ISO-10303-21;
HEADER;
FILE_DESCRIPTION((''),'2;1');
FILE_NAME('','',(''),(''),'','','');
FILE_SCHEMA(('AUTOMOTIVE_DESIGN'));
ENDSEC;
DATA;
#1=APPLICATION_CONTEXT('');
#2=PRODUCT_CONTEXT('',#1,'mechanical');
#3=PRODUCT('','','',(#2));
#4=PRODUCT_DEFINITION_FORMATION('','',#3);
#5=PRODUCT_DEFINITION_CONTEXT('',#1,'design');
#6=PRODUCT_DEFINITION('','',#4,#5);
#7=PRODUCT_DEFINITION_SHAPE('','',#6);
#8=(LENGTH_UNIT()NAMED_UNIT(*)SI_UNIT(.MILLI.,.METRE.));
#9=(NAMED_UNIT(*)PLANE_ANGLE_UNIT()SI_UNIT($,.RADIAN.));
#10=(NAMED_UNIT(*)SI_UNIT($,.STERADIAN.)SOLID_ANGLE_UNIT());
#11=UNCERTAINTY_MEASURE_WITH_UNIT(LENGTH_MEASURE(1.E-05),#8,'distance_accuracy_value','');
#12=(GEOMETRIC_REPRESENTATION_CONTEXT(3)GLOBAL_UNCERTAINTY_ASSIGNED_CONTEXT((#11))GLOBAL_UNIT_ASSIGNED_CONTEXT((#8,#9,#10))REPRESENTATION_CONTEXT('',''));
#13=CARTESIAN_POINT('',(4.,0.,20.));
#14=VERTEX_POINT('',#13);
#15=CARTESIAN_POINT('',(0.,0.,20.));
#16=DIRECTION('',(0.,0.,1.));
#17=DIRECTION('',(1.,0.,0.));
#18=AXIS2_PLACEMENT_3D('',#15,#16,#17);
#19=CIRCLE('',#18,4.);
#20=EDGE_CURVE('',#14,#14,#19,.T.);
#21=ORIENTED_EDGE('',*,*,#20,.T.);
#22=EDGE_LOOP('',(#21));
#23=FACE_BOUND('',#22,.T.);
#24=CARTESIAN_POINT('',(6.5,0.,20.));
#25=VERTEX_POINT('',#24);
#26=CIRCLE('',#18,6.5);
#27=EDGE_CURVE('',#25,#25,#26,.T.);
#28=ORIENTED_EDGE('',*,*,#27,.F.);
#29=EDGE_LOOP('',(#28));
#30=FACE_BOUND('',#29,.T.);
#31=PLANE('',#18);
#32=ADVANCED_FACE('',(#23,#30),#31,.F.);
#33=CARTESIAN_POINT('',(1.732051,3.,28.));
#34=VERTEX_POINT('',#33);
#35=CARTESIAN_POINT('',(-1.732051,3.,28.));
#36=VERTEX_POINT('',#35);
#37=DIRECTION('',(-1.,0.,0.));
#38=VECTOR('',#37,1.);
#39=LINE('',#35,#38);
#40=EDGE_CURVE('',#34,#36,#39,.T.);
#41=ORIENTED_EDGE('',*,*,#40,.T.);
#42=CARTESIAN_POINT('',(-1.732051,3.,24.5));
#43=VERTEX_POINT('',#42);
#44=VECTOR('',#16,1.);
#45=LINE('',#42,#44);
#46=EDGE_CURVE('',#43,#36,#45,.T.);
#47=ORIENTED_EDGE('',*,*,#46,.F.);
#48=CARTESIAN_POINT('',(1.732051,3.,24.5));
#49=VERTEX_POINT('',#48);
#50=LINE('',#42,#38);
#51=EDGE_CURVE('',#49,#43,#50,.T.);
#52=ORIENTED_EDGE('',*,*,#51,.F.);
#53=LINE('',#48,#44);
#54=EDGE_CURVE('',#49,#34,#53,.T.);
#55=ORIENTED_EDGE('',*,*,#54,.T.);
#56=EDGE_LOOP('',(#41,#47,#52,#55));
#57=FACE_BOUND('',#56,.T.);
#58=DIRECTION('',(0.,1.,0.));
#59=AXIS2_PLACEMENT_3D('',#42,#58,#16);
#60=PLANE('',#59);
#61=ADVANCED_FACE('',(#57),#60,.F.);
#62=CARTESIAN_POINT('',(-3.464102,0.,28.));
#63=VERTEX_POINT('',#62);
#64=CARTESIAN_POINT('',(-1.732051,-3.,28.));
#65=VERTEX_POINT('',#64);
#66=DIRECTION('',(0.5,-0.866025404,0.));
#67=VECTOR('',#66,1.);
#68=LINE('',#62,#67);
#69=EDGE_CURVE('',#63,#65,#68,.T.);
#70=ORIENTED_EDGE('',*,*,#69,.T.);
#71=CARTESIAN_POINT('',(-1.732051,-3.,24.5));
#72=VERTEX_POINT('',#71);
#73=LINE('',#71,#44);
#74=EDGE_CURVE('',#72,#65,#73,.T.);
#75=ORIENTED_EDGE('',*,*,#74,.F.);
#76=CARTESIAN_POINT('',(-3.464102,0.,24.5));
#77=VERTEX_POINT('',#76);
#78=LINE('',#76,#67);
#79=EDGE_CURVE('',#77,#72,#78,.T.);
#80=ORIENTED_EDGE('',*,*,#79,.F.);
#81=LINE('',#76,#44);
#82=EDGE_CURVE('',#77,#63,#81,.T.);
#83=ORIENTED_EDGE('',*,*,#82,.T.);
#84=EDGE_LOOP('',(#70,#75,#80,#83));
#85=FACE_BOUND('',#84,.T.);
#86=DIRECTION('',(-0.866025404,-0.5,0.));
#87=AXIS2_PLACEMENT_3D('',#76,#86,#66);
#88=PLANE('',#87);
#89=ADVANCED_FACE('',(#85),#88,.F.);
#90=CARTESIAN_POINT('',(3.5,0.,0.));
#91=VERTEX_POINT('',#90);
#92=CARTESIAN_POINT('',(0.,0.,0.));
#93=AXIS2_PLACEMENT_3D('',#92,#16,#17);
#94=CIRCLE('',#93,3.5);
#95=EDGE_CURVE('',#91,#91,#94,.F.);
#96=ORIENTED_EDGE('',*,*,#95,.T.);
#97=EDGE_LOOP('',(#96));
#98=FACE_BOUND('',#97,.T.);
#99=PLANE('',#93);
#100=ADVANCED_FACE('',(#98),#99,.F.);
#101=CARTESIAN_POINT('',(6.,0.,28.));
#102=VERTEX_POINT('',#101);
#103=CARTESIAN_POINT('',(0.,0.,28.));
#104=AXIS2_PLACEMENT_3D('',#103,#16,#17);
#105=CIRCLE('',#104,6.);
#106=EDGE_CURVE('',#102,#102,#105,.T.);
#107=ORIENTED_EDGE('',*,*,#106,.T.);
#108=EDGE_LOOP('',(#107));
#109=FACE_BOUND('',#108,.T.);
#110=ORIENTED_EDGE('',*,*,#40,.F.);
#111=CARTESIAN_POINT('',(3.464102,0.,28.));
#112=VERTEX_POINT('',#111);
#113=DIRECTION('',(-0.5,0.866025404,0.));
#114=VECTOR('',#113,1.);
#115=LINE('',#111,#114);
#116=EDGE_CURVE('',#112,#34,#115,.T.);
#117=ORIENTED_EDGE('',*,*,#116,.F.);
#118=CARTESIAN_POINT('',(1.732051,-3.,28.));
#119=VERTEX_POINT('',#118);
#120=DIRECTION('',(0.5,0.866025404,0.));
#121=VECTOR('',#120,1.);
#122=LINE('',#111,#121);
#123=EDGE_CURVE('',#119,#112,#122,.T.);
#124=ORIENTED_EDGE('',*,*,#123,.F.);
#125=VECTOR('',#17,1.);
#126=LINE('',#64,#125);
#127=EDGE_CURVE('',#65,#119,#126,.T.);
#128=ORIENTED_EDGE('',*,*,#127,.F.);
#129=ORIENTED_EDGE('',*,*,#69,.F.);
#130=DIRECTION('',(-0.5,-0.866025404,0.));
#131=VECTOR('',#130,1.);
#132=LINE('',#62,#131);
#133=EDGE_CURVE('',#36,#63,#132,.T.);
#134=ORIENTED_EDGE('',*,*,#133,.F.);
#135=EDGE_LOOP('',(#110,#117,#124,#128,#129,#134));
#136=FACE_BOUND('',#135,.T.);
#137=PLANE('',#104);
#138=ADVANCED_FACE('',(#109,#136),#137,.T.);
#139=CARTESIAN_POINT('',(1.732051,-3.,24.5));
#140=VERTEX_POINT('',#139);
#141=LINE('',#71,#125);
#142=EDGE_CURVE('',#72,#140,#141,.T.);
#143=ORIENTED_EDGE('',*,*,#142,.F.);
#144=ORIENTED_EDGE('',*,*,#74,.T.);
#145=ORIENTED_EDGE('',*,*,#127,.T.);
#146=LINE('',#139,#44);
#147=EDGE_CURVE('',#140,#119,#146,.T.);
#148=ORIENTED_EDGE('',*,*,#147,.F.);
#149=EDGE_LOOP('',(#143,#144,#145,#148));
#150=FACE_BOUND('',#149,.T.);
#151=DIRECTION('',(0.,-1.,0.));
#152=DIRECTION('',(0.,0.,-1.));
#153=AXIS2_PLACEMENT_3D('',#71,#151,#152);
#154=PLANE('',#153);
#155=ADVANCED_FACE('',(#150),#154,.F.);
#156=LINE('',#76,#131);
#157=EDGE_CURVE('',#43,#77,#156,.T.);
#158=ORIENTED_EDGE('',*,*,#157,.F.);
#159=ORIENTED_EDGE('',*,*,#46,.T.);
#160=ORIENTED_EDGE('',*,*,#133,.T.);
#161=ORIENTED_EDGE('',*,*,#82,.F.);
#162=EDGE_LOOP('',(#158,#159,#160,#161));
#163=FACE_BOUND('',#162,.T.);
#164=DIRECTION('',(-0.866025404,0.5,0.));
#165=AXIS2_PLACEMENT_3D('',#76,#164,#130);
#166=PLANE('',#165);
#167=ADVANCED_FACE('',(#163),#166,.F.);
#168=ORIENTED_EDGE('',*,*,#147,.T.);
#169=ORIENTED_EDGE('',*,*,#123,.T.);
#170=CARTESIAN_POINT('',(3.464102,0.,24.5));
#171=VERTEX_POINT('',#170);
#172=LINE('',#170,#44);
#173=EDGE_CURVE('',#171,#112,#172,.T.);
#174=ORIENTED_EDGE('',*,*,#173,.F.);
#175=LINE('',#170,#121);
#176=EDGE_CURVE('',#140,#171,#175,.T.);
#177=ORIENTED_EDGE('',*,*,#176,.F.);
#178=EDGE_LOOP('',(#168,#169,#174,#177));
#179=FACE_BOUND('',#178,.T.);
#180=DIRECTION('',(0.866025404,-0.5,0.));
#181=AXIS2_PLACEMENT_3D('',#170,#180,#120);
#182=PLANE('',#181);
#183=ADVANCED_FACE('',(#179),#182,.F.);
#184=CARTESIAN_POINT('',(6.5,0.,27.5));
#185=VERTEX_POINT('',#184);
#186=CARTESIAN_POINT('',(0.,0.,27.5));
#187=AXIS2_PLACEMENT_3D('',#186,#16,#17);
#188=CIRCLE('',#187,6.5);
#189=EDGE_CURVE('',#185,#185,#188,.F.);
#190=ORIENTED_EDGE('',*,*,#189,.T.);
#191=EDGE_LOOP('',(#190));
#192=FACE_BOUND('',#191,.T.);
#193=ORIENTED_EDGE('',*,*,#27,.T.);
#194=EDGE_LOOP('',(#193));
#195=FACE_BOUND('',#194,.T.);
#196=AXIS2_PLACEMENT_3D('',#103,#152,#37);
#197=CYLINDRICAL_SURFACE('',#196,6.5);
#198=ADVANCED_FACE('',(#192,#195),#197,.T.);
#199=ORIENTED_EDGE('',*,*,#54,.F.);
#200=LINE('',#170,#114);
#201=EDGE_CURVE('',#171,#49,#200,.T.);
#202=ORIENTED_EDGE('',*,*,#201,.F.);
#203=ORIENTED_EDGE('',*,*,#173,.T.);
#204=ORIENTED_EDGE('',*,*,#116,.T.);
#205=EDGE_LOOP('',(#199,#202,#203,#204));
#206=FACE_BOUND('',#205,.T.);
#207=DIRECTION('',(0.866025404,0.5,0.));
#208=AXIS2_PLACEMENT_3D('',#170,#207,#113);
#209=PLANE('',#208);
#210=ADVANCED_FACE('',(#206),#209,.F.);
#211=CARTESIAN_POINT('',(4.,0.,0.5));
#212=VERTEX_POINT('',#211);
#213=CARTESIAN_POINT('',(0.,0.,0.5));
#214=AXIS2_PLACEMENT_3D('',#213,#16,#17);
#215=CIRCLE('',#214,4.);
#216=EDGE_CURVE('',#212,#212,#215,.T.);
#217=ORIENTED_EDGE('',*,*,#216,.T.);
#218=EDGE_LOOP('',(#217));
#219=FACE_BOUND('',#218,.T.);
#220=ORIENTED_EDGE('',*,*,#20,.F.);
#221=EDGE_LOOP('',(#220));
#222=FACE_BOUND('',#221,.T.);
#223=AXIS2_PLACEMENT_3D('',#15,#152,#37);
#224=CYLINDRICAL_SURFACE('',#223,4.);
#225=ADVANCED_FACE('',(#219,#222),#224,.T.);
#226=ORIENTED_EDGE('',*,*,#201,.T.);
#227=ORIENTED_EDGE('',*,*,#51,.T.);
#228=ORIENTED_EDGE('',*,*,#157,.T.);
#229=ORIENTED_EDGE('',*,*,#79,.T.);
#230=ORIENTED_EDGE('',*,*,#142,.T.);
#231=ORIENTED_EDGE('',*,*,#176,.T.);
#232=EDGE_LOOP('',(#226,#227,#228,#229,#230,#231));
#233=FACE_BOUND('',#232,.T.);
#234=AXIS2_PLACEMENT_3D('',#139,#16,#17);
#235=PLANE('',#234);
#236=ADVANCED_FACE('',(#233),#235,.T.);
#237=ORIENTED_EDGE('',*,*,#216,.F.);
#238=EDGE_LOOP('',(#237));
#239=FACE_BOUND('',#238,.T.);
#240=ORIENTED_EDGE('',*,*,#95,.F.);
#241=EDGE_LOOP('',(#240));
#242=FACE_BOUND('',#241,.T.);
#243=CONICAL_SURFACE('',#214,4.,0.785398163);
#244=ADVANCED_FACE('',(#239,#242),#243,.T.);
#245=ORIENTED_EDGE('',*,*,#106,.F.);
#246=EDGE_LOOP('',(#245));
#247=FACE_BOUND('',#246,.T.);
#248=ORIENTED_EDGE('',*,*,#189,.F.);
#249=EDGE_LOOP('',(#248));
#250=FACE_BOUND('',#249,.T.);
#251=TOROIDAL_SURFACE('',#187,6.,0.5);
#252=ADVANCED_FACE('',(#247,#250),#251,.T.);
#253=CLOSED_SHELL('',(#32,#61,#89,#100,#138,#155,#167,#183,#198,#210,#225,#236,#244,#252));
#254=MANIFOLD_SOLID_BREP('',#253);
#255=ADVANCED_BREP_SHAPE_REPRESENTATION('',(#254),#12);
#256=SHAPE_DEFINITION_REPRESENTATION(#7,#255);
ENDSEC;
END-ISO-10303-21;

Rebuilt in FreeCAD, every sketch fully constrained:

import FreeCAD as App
import Part
import Sketcher
from FreeCAD import Vector
Q = App.Units.Quantity


def edges_at(feature, points):
    """Names of the edges that pass closest to the given points."""
    edges = feature.Shape.Edges
    near = lambda p: min(range(len(edges)), key=lambda i: edges[i].distToShape(Part.Vertex(*p))[0])
    return sorted({f"Edge{near(p) + 1}" for p in points})


def add_polygon(sketch, points):
    """Adds a closed chain of lines whose ends are joined by coincident constraints."""
    first, n = sketch.GeometryCount, len(points)
    for a, b in zip(points, points[1:] + points[:1]):
        sketch.addGeometry(Part.LineSegment(App.Vector(*a, 0), App.Vector(*b, 0)), False)
    for i in range(n):
        sketch.addConstraint(Sketcher.Constraint("Coincident", first + i, 2, first + (i + 1) % n, 1))

doc = App.newDocument("Part")
body = doc.addObject("PartDesign::Body", "Body")

# Sketch on XY plane
sketch1 = body.newObject("Sketcher::SketchObject", "Sketch")
sketch1.AttachmentSupport = (doc.getObject("XY_Plane"), [""])
sketch1.MapMode = "FlatFace"
sketch1.addGeometry(Part.Circle(Vector(0, 0, 0), Vector(0, 0, 1), 4), False)
sketch1.addConstraint([
    Sketcher.Constraint("Coincident", 0, 3, -1, 1),
    Sketcher.Constraint("Diameter", 0, Q("8 mm")),
])
pad1 = body.newObject("PartDesign::Pad", "Pad")
pad1.Profile = sketch1
pad1.Length = 20

# Sketch on XY plane
sketch2 = body.newObject("Sketcher::SketchObject", "Sketch001")
sketch2.AttachmentSupport = (doc.getObject("XY_Plane"), [""])
sketch2.MapMode = "FlatFace"
sketch2.AttachmentOffset = App.Placement(Vector(0, 0, 20), App.Rotation())
sketch2.addGeometry(Part.Circle(Vector(0, 0, 0), Vector(0, 0, 1), 6), False)
sketch2.addConstraint([
    Sketcher.Constraint("Coincident", 0, 3, -1, 1),
    Sketcher.Constraint("Diameter", 0, Q("13 mm")),
])
pad2 = body.newObject("PartDesign::Pad", "Pad001")
pad2.Profile = sketch2
pad2.Length = 8

# Sketch on XY plane
sketch3 = body.newObject("Sketcher::SketchObject", "Sketch002")
sketch3.AttachmentSupport = (doc.getObject("XY_Plane"), [""])
sketch3.MapMode = "FlatFace"
sketch3.AttachmentOffset = App.Placement(Vector(0, 0, 28), App.Rotation())
add_polygon(sketch3, [(1.7, 3), (-1.7, 3), (-3.5, 0), (-1.7, -3), (1.7, -3), (3.5, 0)])  # lines 0-5
sketch3.addConstraint([
    Sketcher.Constraint("Horizontal", 0),
    Sketcher.Constraint("Horizontal", 3),
    Sketcher.Constraint("Symmetric", 0, 2, 3, 2, -1, 1),
    Sketcher.Constraint("Symmetric", 1, 2, 4, 2, -1, 1),
    Sketcher.Constraint("PointOnObject", 1, 2, -1),
    Sketcher.Constraint("Parallel", 2, 5),
    Sketcher.Constraint("Vertical", 0, 2, 2, 2),
    Sketcher.Constraint("Angle", 1, Q("-120 deg")),
    Sketcher.Constraint("DistanceY", -1, 1, 0, 2, Q("3 mm")),
    Sketcher.Constraint("DistanceX", 0, 2, 0, 1, Q("3.464102 mm")),
])
pocket1 = body.newObject("PartDesign::Pocket", "Pocket")
pocket1.Profile = sketch3
pocket1.Length = 3.5
doc.recompute()

fillet = body.newObject("PartDesign::Fillet", "Fillet")
fillet.Base = (pocket1, edges_at(pocket1, [(-6.5, 0, 28)]))
fillet.Radius = 0.5
doc.recompute()

chamfer = body.newObject("PartDesign::Chamfer", "Chamfer")
chamfer.Base = (fillet, edges_at(fillet, [(-4, 0, 0)]))
chamfer.Size = 0.5

doc.recompute()
